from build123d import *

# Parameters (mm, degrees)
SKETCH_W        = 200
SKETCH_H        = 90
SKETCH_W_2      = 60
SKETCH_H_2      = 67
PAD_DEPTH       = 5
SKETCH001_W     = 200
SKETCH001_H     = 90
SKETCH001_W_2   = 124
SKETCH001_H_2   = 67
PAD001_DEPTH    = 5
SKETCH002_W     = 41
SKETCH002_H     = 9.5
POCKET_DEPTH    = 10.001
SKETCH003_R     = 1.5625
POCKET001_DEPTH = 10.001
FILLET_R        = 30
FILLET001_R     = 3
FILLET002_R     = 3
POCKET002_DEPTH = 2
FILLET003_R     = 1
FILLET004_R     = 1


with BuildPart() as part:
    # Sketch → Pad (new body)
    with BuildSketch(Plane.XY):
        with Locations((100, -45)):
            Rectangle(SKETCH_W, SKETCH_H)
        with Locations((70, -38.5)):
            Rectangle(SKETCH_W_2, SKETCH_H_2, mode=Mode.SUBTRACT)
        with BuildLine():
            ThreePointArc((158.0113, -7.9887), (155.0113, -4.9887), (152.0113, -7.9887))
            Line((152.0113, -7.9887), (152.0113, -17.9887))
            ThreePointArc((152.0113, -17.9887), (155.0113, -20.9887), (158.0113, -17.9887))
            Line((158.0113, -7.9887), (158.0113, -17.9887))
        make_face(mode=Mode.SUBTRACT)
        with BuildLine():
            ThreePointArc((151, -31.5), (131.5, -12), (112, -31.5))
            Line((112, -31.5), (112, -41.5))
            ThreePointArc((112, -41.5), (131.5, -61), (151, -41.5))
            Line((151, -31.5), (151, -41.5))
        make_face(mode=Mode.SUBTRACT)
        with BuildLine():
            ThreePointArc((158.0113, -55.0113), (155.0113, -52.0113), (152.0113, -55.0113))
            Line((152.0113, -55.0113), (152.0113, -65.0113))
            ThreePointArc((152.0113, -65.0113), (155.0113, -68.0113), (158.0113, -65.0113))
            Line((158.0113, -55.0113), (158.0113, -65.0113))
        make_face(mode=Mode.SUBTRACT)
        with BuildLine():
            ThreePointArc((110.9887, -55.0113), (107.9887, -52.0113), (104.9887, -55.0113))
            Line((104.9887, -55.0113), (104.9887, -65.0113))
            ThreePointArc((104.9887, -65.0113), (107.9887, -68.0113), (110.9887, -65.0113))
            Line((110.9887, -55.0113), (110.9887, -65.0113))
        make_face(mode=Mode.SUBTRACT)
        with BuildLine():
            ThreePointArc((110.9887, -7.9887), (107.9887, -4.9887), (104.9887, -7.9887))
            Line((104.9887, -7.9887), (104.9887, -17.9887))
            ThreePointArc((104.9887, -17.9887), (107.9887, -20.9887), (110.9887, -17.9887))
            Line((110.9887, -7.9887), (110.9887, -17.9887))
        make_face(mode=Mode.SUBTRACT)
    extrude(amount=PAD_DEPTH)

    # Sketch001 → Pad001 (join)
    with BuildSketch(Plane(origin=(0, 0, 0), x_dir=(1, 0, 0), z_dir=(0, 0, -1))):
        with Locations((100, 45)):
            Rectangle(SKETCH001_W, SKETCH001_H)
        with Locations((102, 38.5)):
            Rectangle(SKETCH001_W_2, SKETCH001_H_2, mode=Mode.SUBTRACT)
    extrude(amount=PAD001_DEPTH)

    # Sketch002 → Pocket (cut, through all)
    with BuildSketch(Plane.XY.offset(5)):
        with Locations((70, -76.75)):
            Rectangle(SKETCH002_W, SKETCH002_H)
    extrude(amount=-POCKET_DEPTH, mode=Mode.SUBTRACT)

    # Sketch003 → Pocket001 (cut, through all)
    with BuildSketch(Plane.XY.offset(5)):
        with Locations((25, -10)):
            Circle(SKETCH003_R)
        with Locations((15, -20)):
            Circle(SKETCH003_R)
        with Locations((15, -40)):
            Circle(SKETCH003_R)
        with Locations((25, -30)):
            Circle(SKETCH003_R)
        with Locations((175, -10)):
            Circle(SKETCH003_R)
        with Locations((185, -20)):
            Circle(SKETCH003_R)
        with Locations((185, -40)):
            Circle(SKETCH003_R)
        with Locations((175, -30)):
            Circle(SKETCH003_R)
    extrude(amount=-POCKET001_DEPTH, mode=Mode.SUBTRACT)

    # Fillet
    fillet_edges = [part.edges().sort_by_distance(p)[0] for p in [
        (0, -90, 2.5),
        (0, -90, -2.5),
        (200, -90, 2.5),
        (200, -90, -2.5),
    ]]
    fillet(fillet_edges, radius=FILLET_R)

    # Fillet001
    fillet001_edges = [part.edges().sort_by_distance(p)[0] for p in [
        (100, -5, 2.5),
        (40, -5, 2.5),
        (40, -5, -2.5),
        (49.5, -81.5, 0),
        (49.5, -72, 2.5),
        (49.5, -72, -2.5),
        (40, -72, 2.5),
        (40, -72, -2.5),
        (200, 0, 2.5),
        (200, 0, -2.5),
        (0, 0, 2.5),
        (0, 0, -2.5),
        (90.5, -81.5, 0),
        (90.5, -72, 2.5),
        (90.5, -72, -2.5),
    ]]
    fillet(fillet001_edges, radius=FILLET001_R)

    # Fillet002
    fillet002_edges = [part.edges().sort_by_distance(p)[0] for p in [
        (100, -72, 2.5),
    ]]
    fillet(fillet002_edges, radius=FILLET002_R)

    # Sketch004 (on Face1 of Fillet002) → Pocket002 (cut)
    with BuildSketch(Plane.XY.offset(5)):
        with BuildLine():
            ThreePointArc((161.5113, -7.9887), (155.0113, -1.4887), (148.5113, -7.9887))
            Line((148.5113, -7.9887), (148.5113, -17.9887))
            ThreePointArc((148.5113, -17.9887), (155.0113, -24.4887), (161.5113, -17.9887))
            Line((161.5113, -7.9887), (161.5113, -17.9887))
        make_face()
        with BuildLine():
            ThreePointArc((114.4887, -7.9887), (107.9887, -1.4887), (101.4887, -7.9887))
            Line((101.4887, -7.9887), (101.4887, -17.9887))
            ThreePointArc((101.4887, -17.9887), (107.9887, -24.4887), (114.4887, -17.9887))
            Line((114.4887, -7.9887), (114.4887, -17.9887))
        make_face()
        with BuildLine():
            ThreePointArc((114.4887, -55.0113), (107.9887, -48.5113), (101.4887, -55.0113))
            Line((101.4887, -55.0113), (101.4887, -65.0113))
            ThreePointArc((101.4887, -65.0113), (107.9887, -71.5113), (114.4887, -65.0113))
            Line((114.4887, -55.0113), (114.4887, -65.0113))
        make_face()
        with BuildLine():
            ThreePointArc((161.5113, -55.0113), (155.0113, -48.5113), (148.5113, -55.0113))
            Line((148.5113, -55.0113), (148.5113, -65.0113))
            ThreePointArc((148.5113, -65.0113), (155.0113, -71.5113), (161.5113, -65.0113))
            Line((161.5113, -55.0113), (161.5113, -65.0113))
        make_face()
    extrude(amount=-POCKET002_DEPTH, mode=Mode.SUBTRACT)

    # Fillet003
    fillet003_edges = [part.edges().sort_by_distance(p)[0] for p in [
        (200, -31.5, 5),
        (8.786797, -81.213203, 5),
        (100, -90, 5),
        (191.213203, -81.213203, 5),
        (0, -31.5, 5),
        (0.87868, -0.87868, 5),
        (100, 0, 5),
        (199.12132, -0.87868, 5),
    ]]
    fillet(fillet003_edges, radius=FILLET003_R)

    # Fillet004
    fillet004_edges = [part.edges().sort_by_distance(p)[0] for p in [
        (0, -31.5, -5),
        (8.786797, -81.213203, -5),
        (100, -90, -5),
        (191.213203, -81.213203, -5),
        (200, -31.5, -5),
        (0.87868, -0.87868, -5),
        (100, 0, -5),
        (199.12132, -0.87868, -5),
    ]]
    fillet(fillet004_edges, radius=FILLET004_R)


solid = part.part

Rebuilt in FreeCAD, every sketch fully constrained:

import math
import FreeCAD as App
import Part
import Sketcher
Q = App.Units.Quantity


def edges_at(feature, points):
    """Names of the edges that pass closest to the given points."""
    edges = feature.Shape.Edges
    near = lambda p: min(range(len(edges)), key=lambda i: edges[i].distToShape(Part.Vertex(*p))[0])
    return sorted({f"Edge{near(p) + 1}" for p in points})


def add_polygon(sketch, points):
    """Adds a closed chain of lines whose ends are joined by coincident constraints."""
    first, n = sketch.GeometryCount, len(points)
    for a, b in zip(points, points[1:] + points[:1]):
        sketch.addGeometry(Part.LineSegment(App.Vector(*a, 0), App.Vector(*b, 0)), False)
    for i in range(n):
        sketch.addConstraint(Sketcher.Constraint("Coincident", first + i, 2, first + (i + 1) % n, 1))

doc = App.newDocument("Part")
body = doc.addObject("PartDesign::Body", "Body")

sketch1 = body.newObject("Sketcher::SketchObject", "Sketch")
sketch1.AttachmentSupport = (doc.getObject("XY_Plane"), [""])
sketch1.MapMode = "FlatFace"
add_polygon(sketch1, [(0, 0), (0, -90), (200, -90), (200, 0)])
add_polygon(sketch1, [(100, -72), (40, -72), (40, -5), (100, -5)])
sketch1.addGeometry(Part.ArcOfCircle(Part.Circle(App.Vector(108, -55, 0), App.Vector(0, 0, 1), 3), math.radians(0), math.radians(180)), False)
sketch1.addGeometry(Part.LineSegment(App.Vector(111, -55, 0), App.Vector(111, -65, 0)), False)
sketch1.addGeometry(Part.ArcOfCircle(Part.Circle(App.Vector(108, -65, 0), App.Vector(0, 0, 1), 3), math.radians(180), math.radians(360)), False)
sketch1.addGeometry(Part.LineSegment(App.Vector(105, -65, 0), App.Vector(105, -55, 0)), False)
sketch1.addGeometry(Part.ArcOfCircle(Part.Circle(App.Vector(155, -55, 0), App.Vector(0, 0, 1), 3), math.radians(0), math.radians(180)), False)
sketch1.addGeometry(Part.LineSegment(App.Vector(158, -55, 0), App.Vector(158, -65, 0)), False)
sketch1.addGeometry(Part.ArcOfCircle(Part.Circle(App.Vector(155, -65, 0), App.Vector(0, 0, 1), 3), math.radians(180), math.radians(360)), False)
sketch1.addGeometry(Part.LineSegment(App.Vector(152, -65, 0), App.Vector(152, -55, 0)), False)
sketch1.addGeometry(Part.ArcOfCircle(Part.Circle(App.Vector(131.5, -31.5, 0), App.Vector(0, 0, 1), 19.5), math.radians(0), math.radians(180)), False)
sketch1.addGeometry(Part.LineSegment(App.Vector(151, -31.5, 0), App.Vector(151, -41.5, 0)), False)
sketch1.addGeometry(Part.ArcOfCircle(Part.Circle(App.Vector(131.5, -41.5, 0), App.Vector(0, 0, 1), 19.5), math.radians(180), math.radians(360)), False)
sketch1.addGeometry(Part.LineSegment(App.Vector(112, -41.5, 0), App.Vector(112, -31.5, 0)), False)
sketch1.addGeometry(Part.ArcOfCircle(Part.Circle(App.Vector(108, -8, 0), App.Vector(0, 0, 1), 3), math.radians(0), math.radians(180)), False)
sketch1.addGeometry(Part.LineSegment(App.Vector(111, -8, 0), App.Vector(111, -18, 0)), False)
sketch1.addGeometry(Part.ArcOfCircle(Part.Circle(App.Vector(108, -18, 0), App.Vector(0, 0, 1), 3), math.radians(180), math.radians(360)), False)
sketch1.addGeometry(Part.LineSegment(App.Vector(105, -18, 0), App.Vector(105, -8, 0)), False)
sketch1.addGeometry(Part.ArcOfCircle(Part.Circle(App.Vector(155, -8, 0), App.Vector(0, 0, 1), 3), math.radians(0), math.radians(180)), False)
sketch1.addGeometry(Part.LineSegment(App.Vector(158, -8, 0), App.Vector(158, -18, 0)), False)
sketch1.addGeometry(Part.ArcOfCircle(Part.Circle(App.Vector(155, -18, 0), App.Vector(0, 0, 1), 3), math.radians(180), math.radians(360)), False)
sketch1.addGeometry(Part.LineSegment(App.Vector(152, -18, 0), App.Vector(152, -8, 0)), False)
sketch1.addConstraint(Sketcher.Constraint("Tangent", 8, 1, 9, 1))
sketch1.addConstraint(Sketcher.Constraint("Tangent", 9, 2, 10, 2))
sketch1.addConstraint(Sketcher.Constraint("Tangent", 10, 1, 11, 1))
sketch1.addConstraint(Sketcher.Constraint("Tangent", 11, 2, 8, 2))
sketch1.addConstraint(Sketcher.Constraint("Tangent", 12, 1, 13, 1))
sketch1.addConstraint(Sketcher.Constraint("Tangent", 13, 2, 14, 2))
sketch1.addConstraint(Sketcher.Constraint("Tangent", 14, 1, 15, 1))
sketch1.addConstraint(Sketcher.Constraint("Tangent", 15, 2, 12, 2))
sketch1.addConstraint(Sketcher.Constraint("Tangent", 16, 1, 17, 1))
sketch1.addConstraint(Sketcher.Constraint("Tangent", 17, 2, 18, 2))
sketch1.addConstraint(Sketcher.Constraint("Tangent", 18, 1, 19, 1))
sketch1.addConstraint(Sketcher.Constraint("Tangent", 19, 2, 16, 2))
sketch1.addConstraint(Sketcher.Constraint("Tangent", 20, 1, 21, 1))
sketch1.addConstraint(Sketcher.Constraint("Tangent", 21, 2, 22, 2))
sketch1.addConstraint(Sketcher.Constraint("Tangent", 22, 1, 23, 1))
sketch1.addConstraint(Sketcher.Constraint("Tangent", 23, 2, 20, 2))
sketch1.addConstraint(Sketcher.Constraint("Tangent", 24, 1, 25, 1))
sketch1.addConstraint(Sketcher.Constraint("Tangent", 25, 2, 26, 2))
sketch1.addConstraint(Sketcher.Constraint("Tangent", 26, 1, 27, 1))
sketch1.addConstraint(Sketcher.Constraint("Tangent", 27, 2, 24, 2))
sketch1.addConstraint(Sketcher.Constraint("Vertical", 0))
sketch1.addConstraint(Sketcher.Constraint("Horizontal", 1))
sketch1.addConstraint(Sketcher.Constraint("Vertical", 2))
sketch1.addConstraint(Sketcher.Constraint("Horizontal", 3))
sketch1.addConstraint(Sketcher.Constraint("Horizontal", 4))
sketch1.addConstraint(Sketcher.Constraint("Vertical", 5))
sketch1.addConstraint(Sketcher.Constraint("Horizontal", 6))
sketch1.addConstraint(Sketcher.Constraint("Vertical", 7))
sketch1.addConstraint(Sketcher.Constraint("Vertical", 9))
sketch1.addConstraint(Sketcher.Constraint("Vertical", 11))
sketch1.addConstraint(Sketcher.Constraint("Vertical", 13))
sketch1.addConstraint(Sketcher.Constraint("Vertical", 15))
sketch1.addConstraint(Sketcher.Constraint("Vertical", 17))
sketch1.addConstraint(Sketcher.Constraint("Vertical", 19))
sketch1.addConstraint(Sketcher.Constraint("Vertical", 21))
sketch1.addConstraint(Sketcher.Constraint("Vertical", 23))
sketch1.addConstraint(Sketcher.Constraint("Vertical", 25))
sketch1.addConstraint(Sketcher.Constraint("Vertical", 27))
sketch1.addConstraint(Sketcher.Constraint("Coincident", 3, 2, -1, 1))
sketch1.addConstraint(Sketcher.Constraint("Equal", 10, 12))
sketch1.addConstraint(Sketcher.Constraint("Equal", 14, 20))
sketch1.addConstraint(Sketcher.Constraint("Equal", 22, 24))
sketch1.addConstraint(Sketcher.Constraint("Horizontal", 8, 3, 12, 3))
sketch1.addConstraint(Sketcher.Constraint("Horizontal", 10, 3, 14, 3))
sketch1.addConstraint(Sketcher.Constraint("Horizontal", 20, 3, 24, 3))
sketch1.addConstraint(Sketcher.Constraint("Horizontal", 22, 3, 26, 3))
sketch1.addConstraint(Sketcher.Constraint("Vertical", 10, 3, 20, 3))
sketch1.addConstraint(Sketcher.Constraint("Vertical", 14, 3, 24, 3))
sketch1.addConstraint(Sketcher.Constraint("Equal", 15, 17))
sketch1.addConstraint(Sketcher.Constraint("Equal", 19, 21))
sketch1.addConstraint(Sketcher.Constraint("Radius", 8, Q("3 mm")))
sketch1.addConstraint(Sketcher.Constraint("Radius", 16, Q("19.5 mm")))
sketch1.addConstraint(Sketcher.Constraint("DistanceX", 1, 1, 1, 2, Q("200 mm")))
sketch1.addConstraint(Sketcher.Constraint("DistanceX", 4, 2, 4, 1, Q("60 mm")))
sketch1.addConstraint(Sketcher.Constraint("DistanceY", 0, 2, 0, 1, Q("90 mm")))
sketch1.addConstraint(Sketcher.Constraint("DistanceY", 5, 1, 5, 2, Q("67 mm")))
sketch1.addConstraint(Sketcher.Constraint("DistanceY", 9, 2, 9, 1, Q("10 mm")))
sketch1.addConstraint(Sketcher.Constraint("DistanceX", -1, 1, 4, 2, Q("40 mm")))
sketch1.addConstraint(Sketcher.Constraint("DistanceY", 4, 2, -1, 1, Q("72 mm")))
sketch1.addConstraint(Sketcher.Constraint("DistanceX", -1, 1, 16, 1, Q("151 mm")))
sketch1.addConstraint(Sketcher.Constraint("DistanceY", 16, 3, -1, 1, Q("31.5 mm")))
sketch1.addConstraint(Sketcher.Constraint("DistanceX", -1, 1, 8, 3, Q("107.9887 mm")))
sketch1.addConstraint(Sketcher.Constraint("DistanceY", 8, 3, -1, 1, Q("55.0113 mm")))
sketch1.addConstraint(Sketcher.Constraint("DistanceX", -1, 1, 12, 3, Q("155.0113 mm")))
sketch1.addConstraint(Sketcher.Constraint("DistanceY", 20, 3, -1, 1, Q("7.9887 mm")))
pad1 = body.newObject("PartDesign::Pad", "Pad")
pad1.Profile = sketch1
pad1.Length = 5

sketch2 = body.newObject("Sketcher::SketchObject", "Sketch001")
sketch2.AttachmentSupport = (doc.getObject("XY_Plane"), [""])
sketch2.MapMode = "FlatFace"
add_polygon(sketch2, [(0, -90), (0, 0), (200, 0), (200, -90)])
add_polygon(sketch2, [(164, -5), (40, -5), (40, -72), (164, -72)])
sketch2.addConstraint(Sketcher.Constraint("Vertical", 0))
sketch2.addConstraint(Sketcher.Constraint("Horizontal", 1))
sketch2.addConstraint(Sketcher.Constraint("Vertical", 2))
sketch2.addConstraint(Sketcher.Constraint("Horizontal", 3))
sketch2.addConstraint(Sketcher.Constraint("Horizontal", 4))
sketch2.addConstraint(Sketcher.Constraint("Vertical", 5))
sketch2.addConstraint(Sketcher.Constraint("Horizontal", 6))
sketch2.addConstraint(Sketcher.Constraint("Vertical", 7))
sketch2.addConstraint(Sketcher.Constraint("Coincident", 0, 2, -1, 1))
sketch2.addConstraint(Sketcher.Constraint("DistanceX", 1, 1, 1, 2, Q("200 mm")))
sketch2.addConstraint(Sketcher.Constraint("DistanceX", 4, 2, 4, 1, Q("124 mm")))
sketch2.addConstraint(Sketcher.Constraint("DistanceY", 0, 1, 0, 2, Q("90 mm")))
sketch2.addConstraint(Sketcher.Constraint("DistanceY", 5, 2, 5, 1, Q("67 mm")))
sketch2.addConstraint(Sketcher.Constraint("DistanceX", -1, 1, 4, 2, Q("40 mm")))
sketch2.addConstraint(Sketcher.Constraint("DistanceY", 4, 2, -1, 1, Q("5 mm")))
pad2 = body.newObject("PartDesign::Pad", "Pad001")
pad2.Profile = sketch2
pad2.Length = 5
pad2.Reversed = True

sketch3 = body.newObject("Sketcher::SketchObject", "Sketch002")
sketch3.AttachmentSupport = (doc.getObject("XY_Plane"), [""])
sketch3.MapMode = "FlatFace"
sketch3.AttachmentOffset = App.Placement(App.Vector(0, 0, 5), App.Rotation())
add_polygon(sketch3, [(50, -72), (50, -82), (90, -82), (90, -72)])
sketch3.addConstraint(Sketcher.Constraint("Vertical", 0))
sketch3.addConstraint(Sketcher.Constraint("Horizontal", 1))
sketch3.addConstraint(Sketcher.Constraint("Vertical", 2))
sketch3.addConstraint(Sketcher.Constraint("Horizontal", 3))
sketch3.addConstraint(Sketcher.Constraint("DistanceX", 1, 1, 1, 2, Q("41 mm")))
sketch3.addConstraint(Sketcher.Constraint("DistanceY", 0, 2, 0, 1, Q("9.5 mm")))
sketch3.addConstraint(Sketcher.Constraint("DistanceY", 2, 2, -1, 1, Q("72 mm")))
sketch3.addConstraint(Sketcher.Constraint("DistanceX", -1, 1, 0, 2, Q("49.5 mm")))
pocket1 = body.newObject("PartDesign::Pocket", "Pocket")
pocket1.Profile = sketch3
pocket1.Type = "ThroughAll"

sketch4 = body.newObject("Sketcher::SketchObject", "Sketch003")
sketch4.AttachmentSupport = (doc.getObject("XY_Plane"), [""])
sketch4.MapMode = "FlatFace"
sketch4.AttachmentOffset = App.Placement(App.Vector(0, 0, 5), App.Rotation())
sketch4.addGeometry(Part.Circle(App.Vector(25, -10, 0), App.Vector(0, 0, 1), 1.6), False)
sketch4.addGeometry(Part.Circle(App.Vector(15, -20, 0), App.Vector(0, 0, 1), 1.6), False)
sketch4.addGeometry(Part.Circle(App.Vector(15, -40, 0), App.Vector(0, 0, 1), 1.6), False)
sketch4.addGeometry(Part.Circle(App.Vector(25, -30, 0), App.Vector(0, 0, 1), 1.6), False)
sketch4.addGeometry(Part.Circle(App.Vector(175, -10, 0), App.Vector(0, 0, 1), 1.6), False)
sketch4.addGeometry(Part.Circle(App.Vector(185, -20, 0), App.Vector(0, 0, 1), 1.6), False)
sketch4.addGeometry(Part.Circle(App.Vector(185, -40, 0), App.Vector(0, 0, 1), 1.6), False)
sketch4.addGeometry(Part.Circle(App.Vector(175, -30, 0), App.Vector(0, 0, 1), 1.6), False)
sketch4.addConstraint(Sketcher.Constraint("Equal", 0, 1))
sketch4.addConstraint(Sketcher.Constraint("Equal", 1, 2))
sketch4.addConstraint(Sketcher.Constraint("Equal", 2, 3))
sketch4.addConstraint(Sketcher.Constraint("Equal", 3, 4))
sketch4.addConstraint(Sketcher.Constraint("Equal", 4, 5))
sketch4.addConstraint(Sketcher.Constraint("Equal", 5, 6))
sketch4.addConstraint(Sketcher.Constraint("Equal", 6, 7))
sketch4.addConstraint(Sketcher.Constraint("Horizontal", 0, 3, 4, 3))
sketch4.addConstraint(Sketcher.Constraint("Horizontal", 1, 3, 5, 3))
sketch4.addConstraint(Sketcher.Constraint("Horizontal", 2, 3, 6, 3))
sketch4.addConstraint(Sketcher.Constraint("Horizontal", 3, 3, 7, 3))
sketch4.addConstraint(Sketcher.Constraint("Vertical", 1, 3, 2, 3))
sketch4.addConstraint(Sketcher.Constraint("Vertical", 0, 3, 3, 3))
sketch4.addConstraint(Sketcher.Constraint("Vertical", 5, 3, 6, 3))
sketch4.addConstraint(Sketcher.Constraint("Vertical", 4, 3, 7, 3))
sketch4.addConstraint(Sketcher.Constraint("Diameter", 0, Q("3.125 mm")))
sketch4.addConstraint(Sketcher.Constraint("DistanceX", -1, 1, 0, 3, Q("25 mm")))
sketch4.addConstraint(Sketcher.Constraint("DistanceY", 0, 3, -1, 1, Q("10 mm")))
sketch4.addConstraint(Sketcher.Constraint("DistanceX", -1, 1, 1, 3, Q("15 mm")))
sketch4.addConstraint(Sketcher.Constraint("DistanceY", 1, 3, -1, 1, Q("20 mm")))
sketch4.addConstraint(Sketcher.Constraint("DistanceY", 2, 3, -1, 1, Q("40 mm")))
sketch4.addConstraint(Sketcher.Constraint("DistanceY", 3, 3, -1, 1, Q("30 mm")))
sketch4.addConstraint(Sketcher.Constraint("DistanceX", -1, 1, 4, 3, Q("175 mm")))
sketch4.addConstraint(Sketcher.Constraint("DistanceX", -1, 1, 5, 3, Q("185 mm")))
pocket2 = body.newObject("PartDesign::Pocket", "Pocket001")
pocket2.Profile = sketch4
pocket2.Type = "ThroughAll"
doc.recompute()

fillet = body.newObject("PartDesign::Fillet", "Fillet")
fillet.Base = (pocket2, edges_at(pocket2, [
    (0, -90, 0),
    (0, -90, 0),
    (200, -90, 0),
    (200, -90, 0),
]))
fillet.Radius = 30
doc.recompute()

fillet2 = body.newObject("PartDesign::Fillet", "Fillet001")
fillet2.Base = (fillet, edges_at(fillet, [
    (100, -5, 2.5),
    (40, -5, 0),
    (40, -5, 0),
    (49.5, -81.5, 0),
    (49.5, -72, 0),
    (49.5, -72, 0),
    (40, -72, 0),
    (40, -72, 0),
    (200, 0, 0),
    (200, 0, 0),
    (0, 0, 0),
    (0, 0, 0),
    (90.5, -81.5, 0),
    (90.5, -72, 0),
    (90.5, -72, 0),
]))
fillet2.Radius = 3
doc.recompute()

fillet3 = body.newObject("PartDesign::Fillet", "Fillet002")
fillet3.Base = (fillet2, edges_at(fillet2, [(100, -72, 2.5)]))
fillet3.Radius = 3

sketch5 = body.newObject("Sketcher::SketchObject", "Sketch004")
sketch5.AttachmentSupport = (doc.getObject("XY_Plane"), [""])
sketch5.MapMode = "FlatFace"
sketch5.AttachmentOffset = App.Placement(App.Vector(0, 0, 5), App.Rotation())
sketch5.addGeometry(Part.ArcOfCircle(Part.Circle(App.Vector(155, -8, 0), App.Vector(0, 0, 1), 6), math.radians(0), math.radians(180)), False)
sketch5.addGeometry(Part.LineSegment(App.Vector(149, -8, 0), App.Vector(149, -18, 0)), False)
sketch5.addGeometry(Part.ArcOfCircle(Part.Circle(App.Vector(155, -18, 0), App.Vector(0, 0, 1), 6), math.radians(180), math.radians(360)), False)
sketch5.addGeometry(Part.LineSegment(App.Vector(162, -18, 0), App.Vector(162, -8, 0)), False)
sketch5.addGeometry(Part.ArcOfCircle(Part.Circle(App.Vector(108, -8, 0), App.Vector(0, 0, 1), 6), math.radians(0), math.radians(180)), False)
sketch5.addGeometry(Part.LineSegment(App.Vector(101, -8, 0), App.Vector(101, -18, 0)), False)
sketch5.addGeometry(Part.ArcOfCircle(Part.Circle(App.Vector(108, -18, 0), App.Vector(0, 0, 1), 6), math.radians(180), math.radians(360)), False)
sketch5.addGeometry(Part.LineSegment(App.Vector(114, -18, 0), App.Vector(114, -8, 0)), False)
sketch5.addGeometry(Part.ArcOfCircle(Part.Circle(App.Vector(108, -55, 0), App.Vector(0, 0, 1), 6), math.radians(0), math.radians(180)), False)
sketch5.addGeometry(Part.LineSegment(App.Vector(101, -55, 0), App.Vector(101, -65, 0)), False)
sketch5.addGeometry(Part.ArcOfCircle(Part.Circle(App.Vector(108, -65, 0), App.Vector(0, 0, 1), 6), math.radians(180), math.radians(360)), False)
sketch5.addGeometry(Part.LineSegment(App.Vector(114, -65, 0), App.Vector(114, -55, 0)), False)
sketch5.addGeometry(Part.ArcOfCircle(Part.Circle(App.Vector(155, -55, 0), App.Vector(0, 0, 1), 6), math.radians(0), math.radians(180)), False)
sketch5.addGeometry(Part.LineSegment(App.Vector(149, -55, 0), App.Vector(149, -65, 0)), False)
sketch5.addGeometry(Part.ArcOfCircle(Part.Circle(App.Vector(155, -65, 0), App.Vector(0, 0, 1), 6), math.radians(180), math.radians(360)), False)
sketch5.addGeometry(Part.LineSegment(App.Vector(162, -65, 0), App.Vector(162, -55, 0)), False)
sketch5.addConstraint(Sketcher.Constraint("Tangent", 0, 2, 1, 1))
sketch5.addConstraint(Sketcher.Constraint("Tangent", 1, 2, 2, 1))
sketch5.addConstraint(Sketcher.Constraint("Tangent", 2, 2, 3, 1))
sketch5.addConstraint(Sketcher.Constraint("Tangent", 3, 2, 0, 1))
sketch5.addConstraint(Sketcher.Constraint("Tangent", 4, 2, 5, 1))
sketch5.addConstraint(Sketcher.Constraint("Tangent", 5, 2, 6, 1))
sketch5.addConstraint(Sketcher.Constraint("Tangent", 6, 2, 7, 1))
sketch5.addConstraint(Sketcher.Constraint("Tangent", 7, 2, 4, 1))
sketch5.addConstraint(Sketcher.Constraint("Tangent", 8, 2, 9, 1))
sketch5.addConstraint(Sketcher.Constraint("Tangent", 9, 2, 10, 1))
sketch5.addConstraint(Sketcher.Constraint("Tangent", 10, 2, 11, 1))
sketch5.addConstraint(Sketcher.Constraint("Tangent", 11, 2, 8, 1))
sketch5.addConstraint(Sketcher.Constraint("Tangent", 12, 2, 13, 1))
sketch5.addConstraint(Sketcher.Constraint("Tangent", 13, 2, 14, 1))
sketch5.addConstraint(Sketcher.Constraint("Tangent", 14, 2, 15, 1))
sketch5.addConstraint(Sketcher.Constraint("Tangent", 15, 2, 12, 1))
sketch5.addConstraint(Sketcher.Constraint("Vertical", 1))
sketch5.addConstraint(Sketcher.Constraint("Vertical", 3))
sketch5.addConstraint(Sketcher.Constraint("Vertical", 5))
sketch5.addConstraint(Sketcher.Constraint("Vertical", 7))
sketch5.addConstraint(Sketcher.Constraint("Vertical", 9))
sketch5.addConstraint(Sketcher.Constraint("Vertical", 11))
sketch5.addConstraint(Sketcher.Constraint("Vertical", 13))
sketch5.addConstraint(Sketcher.Constraint("Vertical", 15))
sketch5.addConstraint(Sketcher.Constraint("Equal", 2, 4))
sketch5.addConstraint(Sketcher.Constraint("Equal", 6, 8))
sketch5.addConstraint(Sketcher.Constraint("Equal", 10, 12))
sketch5.addConstraint(Sketcher.Constraint("Horizontal", 0, 3, 4, 3))
sketch5.addConstraint(Sketcher.Constraint("Horizontal", 2, 3, 6, 3))
sketch5.addConstraint(Sketcher.Constraint("Horizontal", 8, 3, 12, 3))
sketch5.addConstraint(Sketcher.Constraint("Horizontal", 10, 3, 14, 3))
sketch5.addConstraint(Sketcher.Constraint("Vertical", 6, 3, 8, 3))
sketch5.addConstraint(Sketcher.Constraint("Vertical", 2, 3, 12, 3))
sketch5.addConstraint(Sketcher.Constraint("Equal", 7, 9))
sketch5.addConstraint(Sketcher.Constraint("Radius", 0, Q("6.5 mm")))
sketch5.addConstraint(Sketcher.Constraint("DistanceY", 1, 2, 1, 1, Q("10 mm")))
sketch5.addConstraint(Sketcher.Constraint("DistanceX", -1, 1, 0, 3, Q("155.0113 mm")))
sketch5.addConstraint(Sketcher.Constraint("DistanceY", 0, 3, -1, 1, Q("7.9887 mm")))
sketch5.addConstraint(Sketcher.Constraint("DistanceX", -1, 1, 4, 3, Q("107.9887 mm")))
sketch5.addConstraint(Sketcher.Constraint("DistanceY", 8, 3, -1, 1, Q("55.0113 mm")))
pocket3 = body.newObject("PartDesign::Pocket", "Pocket002")
pocket3.Profile = sketch5
pocket3.Length = 2
doc.recompute()

fillet4 = body.newObject("PartDesign::Fillet", "Fillet003")
fillet4.Base = (pocket3, edges_at(pocket3, [
    (200, -31.5, 5),
    (8.787, -81.213, 5),
    (100, -90, 5),
    (191.213, -81.213, 5),
    (0, -31.5, 5),
    (0.879, -0.879, 5),
    (100, 0, 5),
    (199.121, -0.879, 5),
]))
fillet4.Radius = 1
doc.recompute()

fillet5 = body.newObject("PartDesign::Fillet", "Fillet004")
fillet5.Base = (fillet4, edges_at(fillet4, [
    (0, -31.5, -5),
    (8.787, -81.213, -5),
    (100, -90, -5),
    (191.213, -81.213, -5),
    (200, -31.5, -5),
    (0.879, -0.879, -5),
    (100, 0, -5),
    (199.121, -0.879, -5),
]))
fillet5.Radius = 1

doc.recompute()
